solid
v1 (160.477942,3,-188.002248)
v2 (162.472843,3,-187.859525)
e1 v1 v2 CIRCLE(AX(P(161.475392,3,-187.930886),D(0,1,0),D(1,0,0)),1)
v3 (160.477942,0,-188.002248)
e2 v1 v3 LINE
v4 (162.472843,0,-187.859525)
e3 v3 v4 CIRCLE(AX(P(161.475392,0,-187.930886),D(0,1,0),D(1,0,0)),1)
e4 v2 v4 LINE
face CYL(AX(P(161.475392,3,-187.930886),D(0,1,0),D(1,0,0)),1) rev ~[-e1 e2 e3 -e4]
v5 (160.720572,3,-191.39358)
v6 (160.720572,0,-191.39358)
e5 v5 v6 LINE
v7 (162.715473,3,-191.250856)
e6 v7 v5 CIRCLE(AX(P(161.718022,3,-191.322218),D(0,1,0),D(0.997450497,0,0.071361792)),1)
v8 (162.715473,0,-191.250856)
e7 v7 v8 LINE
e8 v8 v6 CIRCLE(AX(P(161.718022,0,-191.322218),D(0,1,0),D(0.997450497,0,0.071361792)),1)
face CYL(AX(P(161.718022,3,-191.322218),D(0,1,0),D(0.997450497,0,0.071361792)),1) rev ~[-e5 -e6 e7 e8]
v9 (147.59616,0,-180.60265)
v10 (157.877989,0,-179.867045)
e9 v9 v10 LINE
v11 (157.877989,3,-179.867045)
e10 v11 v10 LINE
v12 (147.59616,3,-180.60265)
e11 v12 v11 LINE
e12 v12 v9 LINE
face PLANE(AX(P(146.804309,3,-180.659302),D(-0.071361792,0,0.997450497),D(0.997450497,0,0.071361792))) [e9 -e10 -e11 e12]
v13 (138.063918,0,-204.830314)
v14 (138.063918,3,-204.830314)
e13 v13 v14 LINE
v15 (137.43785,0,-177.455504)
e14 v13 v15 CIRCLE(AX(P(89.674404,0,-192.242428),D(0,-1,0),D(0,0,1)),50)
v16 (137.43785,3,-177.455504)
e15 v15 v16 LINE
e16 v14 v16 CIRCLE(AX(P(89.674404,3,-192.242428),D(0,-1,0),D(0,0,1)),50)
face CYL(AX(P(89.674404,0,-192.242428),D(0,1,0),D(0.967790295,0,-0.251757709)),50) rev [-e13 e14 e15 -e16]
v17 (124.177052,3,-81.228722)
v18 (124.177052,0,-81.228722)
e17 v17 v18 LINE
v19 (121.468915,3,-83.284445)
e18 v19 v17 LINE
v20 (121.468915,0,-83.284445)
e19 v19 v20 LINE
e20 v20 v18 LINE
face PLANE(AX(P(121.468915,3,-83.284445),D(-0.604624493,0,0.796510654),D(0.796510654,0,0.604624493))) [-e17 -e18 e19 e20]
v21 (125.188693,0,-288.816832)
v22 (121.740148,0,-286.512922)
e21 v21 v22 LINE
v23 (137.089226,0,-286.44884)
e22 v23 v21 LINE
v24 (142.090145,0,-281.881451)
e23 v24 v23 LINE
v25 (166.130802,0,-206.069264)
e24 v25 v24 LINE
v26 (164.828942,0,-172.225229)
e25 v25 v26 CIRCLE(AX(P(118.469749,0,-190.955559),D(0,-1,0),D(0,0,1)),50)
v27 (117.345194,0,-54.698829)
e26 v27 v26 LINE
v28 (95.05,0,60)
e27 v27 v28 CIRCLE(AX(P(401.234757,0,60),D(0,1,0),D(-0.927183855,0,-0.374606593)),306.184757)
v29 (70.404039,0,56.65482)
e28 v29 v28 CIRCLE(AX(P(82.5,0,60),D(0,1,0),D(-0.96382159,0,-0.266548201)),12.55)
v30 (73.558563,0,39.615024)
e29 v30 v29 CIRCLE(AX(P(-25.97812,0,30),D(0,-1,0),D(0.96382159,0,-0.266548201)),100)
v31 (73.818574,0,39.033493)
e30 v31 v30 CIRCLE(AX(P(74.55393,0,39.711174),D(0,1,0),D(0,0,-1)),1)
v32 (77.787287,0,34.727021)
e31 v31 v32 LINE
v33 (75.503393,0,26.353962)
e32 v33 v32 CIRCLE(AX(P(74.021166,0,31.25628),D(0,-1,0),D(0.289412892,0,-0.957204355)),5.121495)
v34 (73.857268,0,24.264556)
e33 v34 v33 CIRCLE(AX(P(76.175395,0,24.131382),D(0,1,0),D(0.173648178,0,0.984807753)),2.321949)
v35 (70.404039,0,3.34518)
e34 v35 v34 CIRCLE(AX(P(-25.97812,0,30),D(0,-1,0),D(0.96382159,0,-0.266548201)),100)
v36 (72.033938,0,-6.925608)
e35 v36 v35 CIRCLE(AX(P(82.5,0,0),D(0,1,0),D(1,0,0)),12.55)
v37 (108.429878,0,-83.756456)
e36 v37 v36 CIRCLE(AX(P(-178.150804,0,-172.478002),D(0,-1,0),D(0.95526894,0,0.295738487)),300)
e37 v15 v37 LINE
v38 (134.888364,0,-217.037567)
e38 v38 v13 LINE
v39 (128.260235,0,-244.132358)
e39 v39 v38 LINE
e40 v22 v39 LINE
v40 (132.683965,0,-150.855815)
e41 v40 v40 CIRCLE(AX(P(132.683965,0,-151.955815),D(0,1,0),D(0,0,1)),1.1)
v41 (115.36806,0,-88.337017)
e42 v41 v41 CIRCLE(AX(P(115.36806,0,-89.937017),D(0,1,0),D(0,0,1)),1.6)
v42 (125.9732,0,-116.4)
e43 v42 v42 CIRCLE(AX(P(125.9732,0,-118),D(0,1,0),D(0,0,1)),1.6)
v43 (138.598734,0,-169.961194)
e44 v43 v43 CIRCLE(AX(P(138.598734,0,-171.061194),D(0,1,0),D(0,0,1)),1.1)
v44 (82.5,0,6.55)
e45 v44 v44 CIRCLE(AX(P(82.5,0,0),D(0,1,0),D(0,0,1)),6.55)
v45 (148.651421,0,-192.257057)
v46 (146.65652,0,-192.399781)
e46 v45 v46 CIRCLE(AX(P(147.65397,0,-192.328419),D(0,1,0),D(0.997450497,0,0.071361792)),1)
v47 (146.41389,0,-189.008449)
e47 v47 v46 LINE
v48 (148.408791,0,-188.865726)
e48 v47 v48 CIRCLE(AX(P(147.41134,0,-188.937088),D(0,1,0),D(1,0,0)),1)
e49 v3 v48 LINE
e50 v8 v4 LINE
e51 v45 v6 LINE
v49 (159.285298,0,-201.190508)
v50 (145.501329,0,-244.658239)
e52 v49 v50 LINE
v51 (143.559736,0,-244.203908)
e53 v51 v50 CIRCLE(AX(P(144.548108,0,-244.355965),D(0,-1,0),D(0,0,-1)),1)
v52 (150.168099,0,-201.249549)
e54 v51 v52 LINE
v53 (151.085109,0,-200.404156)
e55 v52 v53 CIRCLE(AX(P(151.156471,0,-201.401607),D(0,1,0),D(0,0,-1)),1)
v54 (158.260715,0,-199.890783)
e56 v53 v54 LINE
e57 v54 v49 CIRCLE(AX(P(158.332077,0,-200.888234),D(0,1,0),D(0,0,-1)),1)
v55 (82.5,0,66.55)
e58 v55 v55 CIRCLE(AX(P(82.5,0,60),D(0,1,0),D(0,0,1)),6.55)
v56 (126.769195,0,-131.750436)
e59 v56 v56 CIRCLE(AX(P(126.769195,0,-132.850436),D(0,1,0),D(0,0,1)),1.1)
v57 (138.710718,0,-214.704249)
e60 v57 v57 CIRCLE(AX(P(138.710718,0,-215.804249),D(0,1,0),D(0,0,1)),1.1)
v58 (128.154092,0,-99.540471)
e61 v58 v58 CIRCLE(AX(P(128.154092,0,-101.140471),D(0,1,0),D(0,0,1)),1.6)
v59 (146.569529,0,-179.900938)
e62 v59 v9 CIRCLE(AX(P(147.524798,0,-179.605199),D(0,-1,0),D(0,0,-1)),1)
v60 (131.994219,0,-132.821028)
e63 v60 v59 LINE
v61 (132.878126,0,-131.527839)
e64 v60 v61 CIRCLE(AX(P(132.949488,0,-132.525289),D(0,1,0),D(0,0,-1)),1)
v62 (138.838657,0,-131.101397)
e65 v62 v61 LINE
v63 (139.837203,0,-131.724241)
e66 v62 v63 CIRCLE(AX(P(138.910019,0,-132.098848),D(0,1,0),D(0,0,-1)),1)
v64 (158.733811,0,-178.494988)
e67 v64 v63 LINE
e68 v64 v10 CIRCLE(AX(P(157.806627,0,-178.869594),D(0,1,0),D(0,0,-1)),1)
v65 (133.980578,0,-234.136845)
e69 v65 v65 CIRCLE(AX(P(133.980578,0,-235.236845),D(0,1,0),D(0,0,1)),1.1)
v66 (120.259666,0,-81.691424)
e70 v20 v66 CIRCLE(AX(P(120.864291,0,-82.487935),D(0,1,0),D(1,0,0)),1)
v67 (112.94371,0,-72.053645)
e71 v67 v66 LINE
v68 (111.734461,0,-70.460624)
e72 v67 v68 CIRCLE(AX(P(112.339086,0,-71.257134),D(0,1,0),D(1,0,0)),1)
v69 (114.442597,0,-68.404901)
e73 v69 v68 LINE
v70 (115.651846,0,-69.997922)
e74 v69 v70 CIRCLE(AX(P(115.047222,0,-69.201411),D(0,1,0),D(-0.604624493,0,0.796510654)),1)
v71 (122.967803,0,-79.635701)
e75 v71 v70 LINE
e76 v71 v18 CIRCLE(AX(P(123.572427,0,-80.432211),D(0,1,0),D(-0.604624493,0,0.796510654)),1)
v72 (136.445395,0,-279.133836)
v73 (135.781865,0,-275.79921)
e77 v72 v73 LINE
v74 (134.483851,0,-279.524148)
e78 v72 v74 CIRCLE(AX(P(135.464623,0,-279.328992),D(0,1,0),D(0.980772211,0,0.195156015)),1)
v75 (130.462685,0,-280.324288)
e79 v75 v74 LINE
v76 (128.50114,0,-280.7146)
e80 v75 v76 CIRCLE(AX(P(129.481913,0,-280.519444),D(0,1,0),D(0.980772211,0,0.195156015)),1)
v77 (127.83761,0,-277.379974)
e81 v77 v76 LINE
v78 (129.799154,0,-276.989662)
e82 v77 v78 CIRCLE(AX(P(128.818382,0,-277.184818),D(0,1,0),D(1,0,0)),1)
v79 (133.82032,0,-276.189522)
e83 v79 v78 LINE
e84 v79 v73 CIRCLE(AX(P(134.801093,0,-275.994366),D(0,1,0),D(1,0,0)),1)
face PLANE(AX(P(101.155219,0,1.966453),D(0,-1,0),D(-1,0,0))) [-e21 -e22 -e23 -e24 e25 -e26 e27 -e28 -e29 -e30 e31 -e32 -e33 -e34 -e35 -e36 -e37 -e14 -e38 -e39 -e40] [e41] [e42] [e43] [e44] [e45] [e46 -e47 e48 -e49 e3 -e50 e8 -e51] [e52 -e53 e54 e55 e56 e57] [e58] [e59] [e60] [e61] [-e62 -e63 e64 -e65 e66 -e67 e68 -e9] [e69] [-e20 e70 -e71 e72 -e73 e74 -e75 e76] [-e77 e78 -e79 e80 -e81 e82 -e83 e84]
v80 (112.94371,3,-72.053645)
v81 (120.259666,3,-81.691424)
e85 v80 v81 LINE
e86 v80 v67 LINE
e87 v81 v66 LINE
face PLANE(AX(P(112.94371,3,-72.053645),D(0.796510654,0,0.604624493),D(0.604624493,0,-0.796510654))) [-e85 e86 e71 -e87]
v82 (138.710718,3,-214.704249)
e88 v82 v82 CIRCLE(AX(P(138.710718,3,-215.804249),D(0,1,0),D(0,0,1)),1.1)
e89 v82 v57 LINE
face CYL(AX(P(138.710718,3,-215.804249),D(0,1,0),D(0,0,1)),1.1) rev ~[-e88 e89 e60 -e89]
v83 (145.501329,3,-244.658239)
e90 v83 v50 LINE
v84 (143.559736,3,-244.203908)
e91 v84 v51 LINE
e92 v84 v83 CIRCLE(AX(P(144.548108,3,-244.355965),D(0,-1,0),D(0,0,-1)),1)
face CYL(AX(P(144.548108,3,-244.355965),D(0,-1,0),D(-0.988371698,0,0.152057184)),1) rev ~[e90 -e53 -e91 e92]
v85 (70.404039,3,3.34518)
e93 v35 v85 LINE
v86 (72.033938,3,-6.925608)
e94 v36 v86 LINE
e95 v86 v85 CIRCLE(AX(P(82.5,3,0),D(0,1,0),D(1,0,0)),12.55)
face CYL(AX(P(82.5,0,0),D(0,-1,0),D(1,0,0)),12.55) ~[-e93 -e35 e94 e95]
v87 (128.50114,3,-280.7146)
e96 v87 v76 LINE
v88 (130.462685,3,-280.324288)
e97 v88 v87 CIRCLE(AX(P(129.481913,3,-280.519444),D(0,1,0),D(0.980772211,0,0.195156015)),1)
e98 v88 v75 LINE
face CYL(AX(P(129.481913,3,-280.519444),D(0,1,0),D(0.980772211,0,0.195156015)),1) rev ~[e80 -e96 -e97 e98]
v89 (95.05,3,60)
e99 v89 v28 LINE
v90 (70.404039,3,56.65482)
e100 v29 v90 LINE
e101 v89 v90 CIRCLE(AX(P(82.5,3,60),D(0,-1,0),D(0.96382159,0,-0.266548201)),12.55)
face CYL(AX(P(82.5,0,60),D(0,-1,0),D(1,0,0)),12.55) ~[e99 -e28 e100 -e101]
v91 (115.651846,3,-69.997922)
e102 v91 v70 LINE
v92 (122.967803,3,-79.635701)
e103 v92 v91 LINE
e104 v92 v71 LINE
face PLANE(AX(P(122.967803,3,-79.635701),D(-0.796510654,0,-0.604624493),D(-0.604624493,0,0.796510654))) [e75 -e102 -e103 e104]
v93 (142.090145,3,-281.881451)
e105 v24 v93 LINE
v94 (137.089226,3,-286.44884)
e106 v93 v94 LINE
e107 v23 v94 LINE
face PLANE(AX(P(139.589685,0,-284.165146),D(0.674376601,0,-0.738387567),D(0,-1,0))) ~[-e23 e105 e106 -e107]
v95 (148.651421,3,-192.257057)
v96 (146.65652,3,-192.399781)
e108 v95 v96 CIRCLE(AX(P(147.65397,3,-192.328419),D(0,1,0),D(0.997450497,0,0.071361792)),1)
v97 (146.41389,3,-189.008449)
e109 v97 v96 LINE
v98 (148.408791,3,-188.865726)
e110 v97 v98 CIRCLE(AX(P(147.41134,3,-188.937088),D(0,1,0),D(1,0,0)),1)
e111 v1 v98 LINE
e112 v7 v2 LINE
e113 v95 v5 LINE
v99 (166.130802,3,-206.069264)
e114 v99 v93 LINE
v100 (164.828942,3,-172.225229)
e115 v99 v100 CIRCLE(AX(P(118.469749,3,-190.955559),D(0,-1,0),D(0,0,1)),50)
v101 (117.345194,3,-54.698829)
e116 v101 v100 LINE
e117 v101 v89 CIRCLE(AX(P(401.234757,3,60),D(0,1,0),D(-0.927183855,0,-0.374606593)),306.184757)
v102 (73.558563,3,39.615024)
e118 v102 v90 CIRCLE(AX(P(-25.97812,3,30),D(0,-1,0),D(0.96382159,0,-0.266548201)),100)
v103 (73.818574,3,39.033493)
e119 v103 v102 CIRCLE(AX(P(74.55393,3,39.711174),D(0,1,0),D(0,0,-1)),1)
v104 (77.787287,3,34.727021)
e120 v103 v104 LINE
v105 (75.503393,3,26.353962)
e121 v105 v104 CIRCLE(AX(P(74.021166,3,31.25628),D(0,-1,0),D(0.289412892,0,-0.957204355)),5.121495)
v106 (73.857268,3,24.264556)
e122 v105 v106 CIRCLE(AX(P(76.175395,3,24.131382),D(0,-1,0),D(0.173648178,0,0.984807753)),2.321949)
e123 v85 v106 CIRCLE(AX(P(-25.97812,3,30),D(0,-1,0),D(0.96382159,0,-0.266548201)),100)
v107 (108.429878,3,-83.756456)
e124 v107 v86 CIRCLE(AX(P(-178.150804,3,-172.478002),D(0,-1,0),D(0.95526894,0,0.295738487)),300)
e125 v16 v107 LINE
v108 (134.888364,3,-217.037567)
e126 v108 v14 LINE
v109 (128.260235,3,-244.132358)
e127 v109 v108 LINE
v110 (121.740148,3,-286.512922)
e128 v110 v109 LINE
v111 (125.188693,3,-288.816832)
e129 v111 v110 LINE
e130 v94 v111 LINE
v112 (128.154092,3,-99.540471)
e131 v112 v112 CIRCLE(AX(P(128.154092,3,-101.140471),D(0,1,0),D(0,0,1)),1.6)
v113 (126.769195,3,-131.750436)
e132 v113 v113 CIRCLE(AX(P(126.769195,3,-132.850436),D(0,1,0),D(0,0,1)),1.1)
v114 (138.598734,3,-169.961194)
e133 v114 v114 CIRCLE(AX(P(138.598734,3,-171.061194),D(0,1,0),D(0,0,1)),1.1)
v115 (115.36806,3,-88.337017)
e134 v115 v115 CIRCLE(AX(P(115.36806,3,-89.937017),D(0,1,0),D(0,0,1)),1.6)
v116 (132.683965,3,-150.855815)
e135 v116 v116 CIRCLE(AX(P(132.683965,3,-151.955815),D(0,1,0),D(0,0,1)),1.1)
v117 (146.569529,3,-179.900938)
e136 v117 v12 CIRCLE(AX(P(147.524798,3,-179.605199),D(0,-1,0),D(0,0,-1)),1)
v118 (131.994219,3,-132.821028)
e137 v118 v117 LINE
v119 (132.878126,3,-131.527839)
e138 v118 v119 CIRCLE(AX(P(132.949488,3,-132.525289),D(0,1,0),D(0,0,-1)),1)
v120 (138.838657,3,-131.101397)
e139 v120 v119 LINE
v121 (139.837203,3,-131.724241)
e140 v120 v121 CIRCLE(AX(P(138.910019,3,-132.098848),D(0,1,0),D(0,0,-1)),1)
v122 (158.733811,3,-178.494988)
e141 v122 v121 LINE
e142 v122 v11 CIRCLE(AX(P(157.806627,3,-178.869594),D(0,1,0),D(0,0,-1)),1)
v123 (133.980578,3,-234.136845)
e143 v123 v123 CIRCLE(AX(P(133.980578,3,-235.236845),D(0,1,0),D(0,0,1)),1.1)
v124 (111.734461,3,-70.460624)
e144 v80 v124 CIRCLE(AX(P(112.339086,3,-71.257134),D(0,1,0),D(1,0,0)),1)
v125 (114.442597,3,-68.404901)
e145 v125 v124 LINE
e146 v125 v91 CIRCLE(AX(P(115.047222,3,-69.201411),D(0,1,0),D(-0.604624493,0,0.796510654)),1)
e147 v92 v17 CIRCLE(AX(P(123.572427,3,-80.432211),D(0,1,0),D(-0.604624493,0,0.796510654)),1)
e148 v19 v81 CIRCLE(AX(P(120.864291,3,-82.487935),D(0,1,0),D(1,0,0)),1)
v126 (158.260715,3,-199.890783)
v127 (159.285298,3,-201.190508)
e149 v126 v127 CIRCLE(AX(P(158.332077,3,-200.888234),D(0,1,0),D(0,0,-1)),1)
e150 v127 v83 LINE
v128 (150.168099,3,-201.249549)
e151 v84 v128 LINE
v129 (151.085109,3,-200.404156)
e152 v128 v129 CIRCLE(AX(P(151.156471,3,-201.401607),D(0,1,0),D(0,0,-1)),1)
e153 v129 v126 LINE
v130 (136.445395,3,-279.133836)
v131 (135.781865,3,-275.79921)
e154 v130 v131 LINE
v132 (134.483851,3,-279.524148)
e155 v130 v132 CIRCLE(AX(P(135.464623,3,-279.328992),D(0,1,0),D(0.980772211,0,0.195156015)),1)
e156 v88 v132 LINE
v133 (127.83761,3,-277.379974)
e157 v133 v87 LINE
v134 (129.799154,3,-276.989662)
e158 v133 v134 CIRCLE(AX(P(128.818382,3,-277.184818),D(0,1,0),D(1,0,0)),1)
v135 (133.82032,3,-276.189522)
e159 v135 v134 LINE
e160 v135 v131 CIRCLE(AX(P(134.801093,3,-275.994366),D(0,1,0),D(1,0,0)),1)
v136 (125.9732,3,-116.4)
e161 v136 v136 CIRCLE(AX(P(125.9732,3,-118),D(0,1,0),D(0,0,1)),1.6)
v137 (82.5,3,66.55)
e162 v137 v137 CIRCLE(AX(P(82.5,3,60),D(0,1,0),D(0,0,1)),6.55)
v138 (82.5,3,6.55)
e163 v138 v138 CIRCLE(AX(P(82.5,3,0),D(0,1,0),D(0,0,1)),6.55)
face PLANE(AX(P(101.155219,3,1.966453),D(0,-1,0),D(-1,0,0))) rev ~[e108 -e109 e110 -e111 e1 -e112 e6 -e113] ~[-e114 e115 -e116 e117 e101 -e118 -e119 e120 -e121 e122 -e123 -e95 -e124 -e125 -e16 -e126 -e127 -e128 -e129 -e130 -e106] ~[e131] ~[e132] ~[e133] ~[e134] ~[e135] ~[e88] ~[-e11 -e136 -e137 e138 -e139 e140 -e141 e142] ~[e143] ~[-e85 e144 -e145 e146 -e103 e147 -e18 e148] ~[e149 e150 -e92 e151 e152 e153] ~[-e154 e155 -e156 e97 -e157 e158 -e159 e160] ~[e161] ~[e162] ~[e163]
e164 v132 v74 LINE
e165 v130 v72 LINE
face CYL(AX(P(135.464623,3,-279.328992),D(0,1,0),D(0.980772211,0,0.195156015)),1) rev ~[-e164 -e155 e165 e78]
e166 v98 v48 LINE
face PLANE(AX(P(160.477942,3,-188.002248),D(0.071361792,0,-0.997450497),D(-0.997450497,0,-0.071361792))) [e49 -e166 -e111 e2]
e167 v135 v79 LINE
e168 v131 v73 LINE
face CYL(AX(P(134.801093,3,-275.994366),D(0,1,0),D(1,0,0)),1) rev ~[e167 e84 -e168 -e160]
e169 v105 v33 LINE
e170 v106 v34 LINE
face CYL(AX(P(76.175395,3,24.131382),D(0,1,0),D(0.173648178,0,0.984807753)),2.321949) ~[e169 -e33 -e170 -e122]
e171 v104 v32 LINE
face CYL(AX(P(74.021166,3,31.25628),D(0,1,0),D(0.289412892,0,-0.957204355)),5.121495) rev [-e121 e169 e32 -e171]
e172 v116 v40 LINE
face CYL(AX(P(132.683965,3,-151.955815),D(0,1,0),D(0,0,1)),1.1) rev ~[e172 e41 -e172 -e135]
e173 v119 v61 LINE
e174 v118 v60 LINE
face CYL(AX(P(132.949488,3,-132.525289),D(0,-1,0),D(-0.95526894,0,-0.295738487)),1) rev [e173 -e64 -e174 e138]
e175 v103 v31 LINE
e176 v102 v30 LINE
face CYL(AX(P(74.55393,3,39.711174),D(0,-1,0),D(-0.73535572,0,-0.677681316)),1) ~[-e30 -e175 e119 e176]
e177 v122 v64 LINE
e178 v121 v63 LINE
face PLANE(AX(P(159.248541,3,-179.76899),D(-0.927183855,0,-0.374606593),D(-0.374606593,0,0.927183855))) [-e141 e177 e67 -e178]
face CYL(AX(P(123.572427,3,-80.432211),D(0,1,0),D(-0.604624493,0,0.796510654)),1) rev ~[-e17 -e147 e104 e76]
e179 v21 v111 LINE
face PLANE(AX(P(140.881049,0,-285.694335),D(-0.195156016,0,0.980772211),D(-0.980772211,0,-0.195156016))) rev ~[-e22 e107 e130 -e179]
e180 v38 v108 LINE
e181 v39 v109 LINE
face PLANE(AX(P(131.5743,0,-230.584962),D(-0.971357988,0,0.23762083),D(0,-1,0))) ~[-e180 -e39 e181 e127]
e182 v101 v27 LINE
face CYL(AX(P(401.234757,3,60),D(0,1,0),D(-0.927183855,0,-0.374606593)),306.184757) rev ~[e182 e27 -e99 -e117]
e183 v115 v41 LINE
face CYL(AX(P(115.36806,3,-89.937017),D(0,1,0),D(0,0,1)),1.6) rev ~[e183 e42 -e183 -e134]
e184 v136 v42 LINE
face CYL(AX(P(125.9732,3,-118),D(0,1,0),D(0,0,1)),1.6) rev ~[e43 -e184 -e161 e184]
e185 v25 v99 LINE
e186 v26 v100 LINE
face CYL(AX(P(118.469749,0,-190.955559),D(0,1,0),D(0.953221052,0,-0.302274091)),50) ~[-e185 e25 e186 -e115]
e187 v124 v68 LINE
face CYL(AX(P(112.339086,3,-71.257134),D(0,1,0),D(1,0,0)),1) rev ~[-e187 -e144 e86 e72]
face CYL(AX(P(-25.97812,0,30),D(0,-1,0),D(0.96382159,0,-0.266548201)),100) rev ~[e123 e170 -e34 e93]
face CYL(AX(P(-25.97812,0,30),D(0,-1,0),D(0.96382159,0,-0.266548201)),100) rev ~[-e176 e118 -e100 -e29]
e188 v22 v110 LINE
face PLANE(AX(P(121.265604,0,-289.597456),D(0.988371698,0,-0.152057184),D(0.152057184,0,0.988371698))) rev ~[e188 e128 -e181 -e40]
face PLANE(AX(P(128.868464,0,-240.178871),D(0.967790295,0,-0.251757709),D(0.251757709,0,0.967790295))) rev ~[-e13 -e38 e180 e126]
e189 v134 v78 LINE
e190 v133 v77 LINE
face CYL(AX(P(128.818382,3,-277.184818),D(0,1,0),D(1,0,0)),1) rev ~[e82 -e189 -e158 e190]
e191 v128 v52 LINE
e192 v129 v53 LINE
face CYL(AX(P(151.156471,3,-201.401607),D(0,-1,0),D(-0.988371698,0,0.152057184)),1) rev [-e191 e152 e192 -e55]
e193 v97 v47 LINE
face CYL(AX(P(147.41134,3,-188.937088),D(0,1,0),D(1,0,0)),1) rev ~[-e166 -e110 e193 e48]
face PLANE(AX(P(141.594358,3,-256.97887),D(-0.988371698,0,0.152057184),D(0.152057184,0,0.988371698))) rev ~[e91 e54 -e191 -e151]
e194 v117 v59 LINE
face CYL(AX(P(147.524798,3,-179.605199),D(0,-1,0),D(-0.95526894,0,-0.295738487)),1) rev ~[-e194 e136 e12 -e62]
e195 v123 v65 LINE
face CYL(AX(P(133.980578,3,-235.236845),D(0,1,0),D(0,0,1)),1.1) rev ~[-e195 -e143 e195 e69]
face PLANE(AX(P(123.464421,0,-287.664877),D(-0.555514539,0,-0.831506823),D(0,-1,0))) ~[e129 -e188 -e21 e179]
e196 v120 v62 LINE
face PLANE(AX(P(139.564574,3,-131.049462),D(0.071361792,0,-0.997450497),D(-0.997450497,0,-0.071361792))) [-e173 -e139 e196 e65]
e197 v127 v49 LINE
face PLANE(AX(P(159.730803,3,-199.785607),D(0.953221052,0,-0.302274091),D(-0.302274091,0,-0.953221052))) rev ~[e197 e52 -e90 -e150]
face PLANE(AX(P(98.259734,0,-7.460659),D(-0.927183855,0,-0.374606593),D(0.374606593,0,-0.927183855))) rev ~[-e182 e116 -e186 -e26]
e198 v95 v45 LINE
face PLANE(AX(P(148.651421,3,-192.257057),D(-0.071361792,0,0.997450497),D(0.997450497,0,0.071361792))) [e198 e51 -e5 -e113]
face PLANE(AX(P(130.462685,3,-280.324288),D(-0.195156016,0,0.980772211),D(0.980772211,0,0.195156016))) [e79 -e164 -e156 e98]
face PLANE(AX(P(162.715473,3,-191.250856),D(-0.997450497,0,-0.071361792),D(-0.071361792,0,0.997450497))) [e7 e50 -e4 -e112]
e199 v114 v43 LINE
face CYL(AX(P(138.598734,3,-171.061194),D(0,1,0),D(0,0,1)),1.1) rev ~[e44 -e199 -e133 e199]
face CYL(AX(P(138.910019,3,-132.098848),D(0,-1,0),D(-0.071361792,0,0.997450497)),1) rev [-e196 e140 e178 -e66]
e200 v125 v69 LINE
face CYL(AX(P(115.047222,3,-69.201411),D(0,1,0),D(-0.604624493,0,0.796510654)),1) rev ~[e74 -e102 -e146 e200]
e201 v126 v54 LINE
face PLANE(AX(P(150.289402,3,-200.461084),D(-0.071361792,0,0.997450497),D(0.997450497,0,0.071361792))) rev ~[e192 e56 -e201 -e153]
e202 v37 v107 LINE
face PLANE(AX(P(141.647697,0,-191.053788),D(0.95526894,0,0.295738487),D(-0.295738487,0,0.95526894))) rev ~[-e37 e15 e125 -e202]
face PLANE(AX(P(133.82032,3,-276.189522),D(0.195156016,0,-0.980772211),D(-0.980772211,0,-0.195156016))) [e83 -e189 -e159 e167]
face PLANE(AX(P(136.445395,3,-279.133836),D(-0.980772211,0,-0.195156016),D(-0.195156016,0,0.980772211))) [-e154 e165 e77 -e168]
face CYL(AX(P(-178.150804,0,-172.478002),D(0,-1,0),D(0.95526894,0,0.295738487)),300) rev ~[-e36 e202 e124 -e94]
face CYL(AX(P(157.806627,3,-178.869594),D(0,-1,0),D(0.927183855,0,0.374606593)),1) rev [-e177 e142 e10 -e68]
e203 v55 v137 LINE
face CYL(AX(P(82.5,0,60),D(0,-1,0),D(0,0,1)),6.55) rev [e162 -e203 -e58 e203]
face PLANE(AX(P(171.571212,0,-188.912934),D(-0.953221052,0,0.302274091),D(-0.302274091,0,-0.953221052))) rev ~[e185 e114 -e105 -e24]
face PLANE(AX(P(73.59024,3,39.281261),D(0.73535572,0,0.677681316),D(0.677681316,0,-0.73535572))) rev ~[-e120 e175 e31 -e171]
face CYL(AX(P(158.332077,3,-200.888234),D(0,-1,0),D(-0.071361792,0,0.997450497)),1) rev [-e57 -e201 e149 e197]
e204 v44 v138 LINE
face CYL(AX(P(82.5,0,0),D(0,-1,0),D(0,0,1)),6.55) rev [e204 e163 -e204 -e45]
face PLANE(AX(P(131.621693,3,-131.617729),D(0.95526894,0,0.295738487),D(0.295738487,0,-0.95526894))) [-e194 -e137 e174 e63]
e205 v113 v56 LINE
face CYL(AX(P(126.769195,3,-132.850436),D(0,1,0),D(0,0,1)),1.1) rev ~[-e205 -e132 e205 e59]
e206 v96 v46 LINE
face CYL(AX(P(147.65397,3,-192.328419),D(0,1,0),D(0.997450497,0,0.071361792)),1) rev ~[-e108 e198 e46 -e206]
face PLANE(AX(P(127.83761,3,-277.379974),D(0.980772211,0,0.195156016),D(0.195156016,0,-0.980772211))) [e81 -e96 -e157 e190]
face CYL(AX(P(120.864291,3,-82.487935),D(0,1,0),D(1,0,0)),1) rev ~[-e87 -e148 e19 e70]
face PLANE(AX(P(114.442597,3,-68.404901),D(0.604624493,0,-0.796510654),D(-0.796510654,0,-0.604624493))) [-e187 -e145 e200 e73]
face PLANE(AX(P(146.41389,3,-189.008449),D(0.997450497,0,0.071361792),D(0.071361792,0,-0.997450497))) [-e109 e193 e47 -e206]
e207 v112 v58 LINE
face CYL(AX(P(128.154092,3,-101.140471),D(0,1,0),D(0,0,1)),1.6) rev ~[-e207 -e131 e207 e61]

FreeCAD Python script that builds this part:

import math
import FreeCAD as App
import Part
import Sketcher

V = App.Vector
Q = App.Units.Quantity


def edges_at(feature, points):
    """Names of the edges that pass closest to the given points."""
    edges = feature.Shape.Edges
    near = lambda p: min(range(len(edges)), key=lambda i: edges[i].distToShape(Part.Vertex(*p))[0])
    return sorted({f"Edge{near(p) + 1}" for p in points})


def add_polygon(sketch, points):
    """Adds a closed chain of lines whose ends are joined by coincident constraints."""
    first, n = sketch.GeometryCount, len(points)
    for a, b in zip(points, points[1:] + points[:1]):
        sketch.addGeometry(Part.LineSegment(App.Vector(*a, 0), App.Vector(*b, 0)), False)
    for i in range(n):
        sketch.addConstraint(Sketcher.Constraint("Coincident", first + i, 2, first + (i + 1) % n, 1))

doc = App.newDocument("Part")
body = doc.addObject("PartDesign::Body", "Body")

sketch1 = body.newObject("Sketcher::SketchObject", "Sketch")
sketch1.AttachmentSupport = (doc.getObject("XZ_Plane"), [""])
sketch1.MapMode = "FlatFace"
sketch1.addGeometry([
    Part.LineSegment(V(121, -290, 0), V(129, -240, 0)),
    Part.LineSegment(V(129, -240, 0), V(142, -191, 0)),
    Part.LineSegment(V(142, -191, 0), V(108, -84, 0)),
    Part.ArcOfCircle(Part.Circle(V(-178, -172, 0), V(0, 0, 1), 300), math.radians(17.2), math.radians(33.49)),
    Part.ArcOfCircle(Part.Circle(V(82, 0, 0), V(0, 0, 1), 13), math.radians(165), math.radians(213)),
    Part.ArcOfCircle(Part.Circle(V(-26, 30, 0), V(0, 0, 1), 100), math.radians(-15), math.radians(15)),
    Part.ArcOfCircle(Part.Circle(V(82, 60, 0), V(0, 0, 1), 13), math.radians(-15), math.radians(195)),
    Part.ArcOfCircle(Part.Circle(V(191, 30, 0), V(0, 0, 1), 100), math.radians(165), math.radians(195)),
    Part.ArcOfCircle(Part.Circle(V(191, 30, 0), V(0, 0, 1), 100), math.radians(-164.54), math.radians(-158)),
    Part.LineSegment(V(98, -7, 0), V(172, -189, 0)),
    Part.LineSegment(V(172, -189, 0), V(141, -286, 0)),
    Part.LineSegment(V(141, -286, 0), V(121, -290, 0)),
    Part.Circle(V(82, 0, 0), V(0, 0, 1), 7),
    Part.Circle(V(82, 60, 0), V(0, 0, 1), 7),
], False)
sketch1.addConstraint([
    Sketcher.Constraint("Coincident", 0, 2, 1, 1),
    Sketcher.Constraint("Coincident", 1, 2, 2, 1),
    Sketcher.Constraint("Tangent", 2, 2, 3, 1),
    Sketcher.Constraint("Tangent", 3, 2, 4, 2),
    Sketcher.Constraint("Tangent", 4, 1, 5, 1),
    Sketcher.Constraint("Tangent", 5, 2, 6, 2),
    Sketcher.Constraint("Tangent", 6, 1, 7, 1),
    Sketcher.Constraint("Tangent", 7, 2, 8, 1),
    Sketcher.Constraint("Tangent", 8, 2, 9, 1),
    Sketcher.Constraint("Coincident", 9, 2, 10, 1),
    Sketcher.Constraint("Coincident", 10, 2, 11, 1),
    Sketcher.Constraint("Coincident", 11, 2, 0, 1),
    Sketcher.Constraint("Coincident", 12, 3, 4, 3),
    Sketcher.Constraint("Coincident", 13, 3, 6, 3),
    Sketcher.Constraint("Equal", 4, 6),
    Sketcher.Constraint("Equal", 5, 7),
    Sketcher.Constraint("Equal", 7, 8),
    Sketcher.Constraint("Equal", 12, 13),
    Sketcher.Constraint("PointOnObject", 4, 3, -1),
    Sketcher.Constraint("Horizontal", 5, 3, 7, 3),
    Sketcher.Constraint("Horizontal", 4, 1, 7, 2),
    Sketcher.Constraint("Vertical", 4, 3, 6, 3),
    Sketcher.Constraint("Radius", 3, Q("300 mm")),
    Sketcher.Constraint("Radius", 5, Q("100 mm")),
    Sketcher.Constraint("Diameter", 12, Q("13.1 mm")),
    Sketcher.Constraint("Angle", 9, Q("-68 deg")),
    Sketcher.Constraint("Radius", 4, Q("12.55 mm")),
    Sketcher.Constraint("Distance", 0, Q("50 mm")),
    Sketcher.Constraint("Distance", 11, Q("20 mm")),
    Sketcher.Constraint("DistanceY", -1, 1, 5, 3, Q("30 mm")),
    Sketcher.Constraint("DistanceX", -1, 1, 4, 3, Q("82.5 mm")),
    Sketcher.Constraint("DistanceY", 3, 3, -1, 1, Q("172.478002 mm")),
    Sketcher.Constraint("DistanceY", 11, 2, 2, 2, Q("205.841 mm")),
    Sketcher.Constraint("DistanceY", 10, 2, 9, 2, Q("96.781401 mm")),
    Sketcher.Constraint("Distance", 1, Q("50.760049 mm")),
    Sketcher.Constraint("Distance", 10, Q("101.53091 mm")),
    Sketcher.Constraint("DistanceY", 0, 2, -1, 1, Q("240.178871 mm")),
    Sketcher.Constraint("DistanceX", -1, 1, 2, 2, Q("108.429878 mm")),
    Sketcher.Constraint("DistanceX", -1, 1, 10, 2, Q("140.881049 mm")),
])
pad1 = body.newObject("PartDesign::Pad", "Pad")
pad1.Profile = sketch1
pad1.Length = 3
pad1.Reversed = True

sketch2 = body.newObject("Sketcher::SketchObject", "Sketch001")
sketch2.AttachmentSupport = (doc.getObject("XZ_Plane"), [""])
sketch2.MapMode = "FlatFace"
sketch2.AttachmentOffset = App.Placement(V(0, 0, -3), App.Rotation())
sketch2.addGeometry([
    Part.ArcOfCircle(Part.Circle(V(77.3, 30.5, 0), V(0, 0, 1), 4.1), math.radians(10), math.radians(80)),
    Part.ArcOfCircle(Part.Circle(V(87.3, 30.5, 0), V(0, 0, 1), 6), math.radians(173.34), math.radians(186.66)),
    Part.ArcOfCircle(Part.Circle(V(77.3, 30.5, 0), V(0, 0, 1), 4.1), math.radians(-100), math.radians(-10)),
    Part.ArcOfCircle(Part.Circle(V(76.2, 24.1, 0), V(0, 0, 1), 2.3), math.radians(80), math.radians(177)),
    Part.ArcOfCircle(Part.Circle(V(-26, 30, 0), V(0, 0, 1), 100), math.radians(-3.29), math.radians(5.33)),
    Part.LineSegment(V(73.6, 39.3, 0), V(78, 34.5, 0)),
], False)
sketch2.addConstraint([
    Sketcher.Constraint("Coincident", 0, 1, 1, 1),
    Sketcher.Constraint("Coincident", 1, 2, 2, 2),
    Sketcher.Constraint("Tangent", 2, 1, 3, 1),
    Sketcher.Constraint("Tangent", 3, 2, 4, 1),
    Sketcher.Constraint("Coincident", 4, 2, 5, 1),
    Sketcher.Constraint("Coincident", 5, 2, 0, 2),
    Sketcher.Constraint("Coincident", 2, 3, 0, 3),
    Sketcher.Constraint("Equal", 0, 2),
    Sketcher.Constraint("Horizontal", 0, 3, 1, 3),
    Sketcher.Constraint("Radius", 1, Q("6 mm")),
    Sketcher.Constraint("Radius", 4, Q("100 mm")),
    Sketcher.Constraint("Radius", 0, Q("4.1 mm")),
    Sketcher.Constraint("DistanceY", -1, 1, 4, 3, Q("30 mm")),
    Sketcher.Constraint("DistanceX", 0, 3, 1, 3, Q("10 mm")),
    Sketcher.Constraint("Radius", 3, Q("2.321949 mm")),
    Sketcher.Constraint("DistanceY", 3, 2, 2, 1, Q("2.153499 mm")),
    Sketcher.Constraint("DistanceX", 4, 3, -1, 1, Q("25.97812 mm")),
    Sketcher.Constraint("DistanceX", -1, 1, 3, 2, Q("73.857268 mm")),
    Sketcher.Constraint("DistanceX", -1, 1, 4, 2, Q("73.59024 mm")),
    Sketcher.Constraint("DistanceY", -1, 1, 5, 2, Q("34.493479 mm")),
])
pocket1 = body.newObject("PartDesign::Pocket", "Pocket")
pocket1.Profile = sketch2
pocket1.Type = "ThroughAll"
pocket1.Reversed = True

sketch3 = body.newObject("Sketcher::SketchObject", "Sketch002")
sketch3.AttachmentSupport = (doc.getObject("XZ_Plane"), [""])
sketch3.MapMode = "FlatFace"
sketch3.AttachmentOffset = App.Placement(V(0, 0, -3), App.Rotation())
sketch3.addGeometry([
    Part.ArcOfCircle(Part.Circle(V(191, 30, 0), V(0, 0, 1), 100), math.radians(177.09), math.radians(182.41)),
    Part.ArcOfCircle(Part.Circle(V(191, 30, 0), V(0, 0, 1), 100), math.radians(174.67), math.radians(177.09)),
    Part.ArcOfCircle(Part.Circle(V(102.2, 38.3, 0), V(0, 0, 1), 10.8), math.radians(175), math.radians(208)),
    Part.ArcOfCircle(Part.Circle(V(87.3, 30.5, 0), V(0, 0, 1), 6), math.radians(0), math.radians(28)),
    Part.ArcOfCircle(Part.Circle(V(87.3, 30.5, 0), V(0, 0, 1), 6), math.radians(-40), math.radians(0)),
    Part.ArcOfCircle(Part.Circle(V(94.6, 24.5, 0), V(0, 0, 1), 3.4), math.radians(140), math.radians(183)),
    Part.ArcOfCircle(Part.Circle(V(191, 30, 0), V(0, 0, 1), 100), math.radians(-177.59), math.radians(-176.71)),
], False)
sketch3.addConstraint([
    Sketcher.Constraint("Tangent", 0, 1, 1, 2),
    Sketcher.Constraint("Tangent", 1, 1, 2, 1),
    Sketcher.Constraint("Tangent", 2, 2, 3, 2),
    Sketcher.Constraint("Tangent", 3, 1, 4, 2),
    Sketcher.Constraint("Tangent", 4, 1, 5, 1),
    Sketcher.Constraint("Tangent", 5, 2, 6, 2),
    Sketcher.Constraint("Tangent", 6, 1, 0, 2),
    Sketcher.Constraint("Equal", 0, 1),
    Sketcher.Constraint("Equal", 3, 4),
    Sketcher.Constraint("Horizontal", 4, 3, 3, 1),
    Sketcher.Constraint("Radius", 0, Q("100.000001 mm")),
    Sketcher.Constraint("Radius", 3, Q("6 mm")),
    Sketcher.Constraint("DistanceY", -1, 1, 0, 3, Q("30 mm")),
    Sketcher.Constraint("DistanceY", -1, 1, 6, 3, Q("30 mm")),
    Sketcher.Constraint("Radius", 2, Q("10.828526 mm")),
    Sketcher.Constraint("Radius", 5, Q("3.421404 mm")),
    Sketcher.Constraint("DistanceX", 5, 2, 4, 1, Q("0.7764 mm")),
    Sketcher.Constraint("DistanceX", -1, 1, 0, 3, Q("190.978121 mm")),
    Sketcher.Constraint("DistanceY", -1, 1, 5, 3, Q("24.460789 mm")),
    Sketcher.Constraint("DistanceX", -1, 1, 6, 1, Q("91.066652 mm")),
    Sketcher.Constraint("DistanceX", 3, 3, 0, 1, Q("3.816941 mm")),
])
pad2 = body.newObject("PartDesign::Pad", "Pad001")
pad2.Profile = sketch3
pad2.Length = 3
doc.recompute()

chamfer = body.newObject("PartDesign::Chamfer", "Chamfer")
chamfer.Base = (pad2, edges_at(pad2, [(121.266, 1.5, -289.597)]))
chamfer.ChamferType = "Two distances"
chamfer.Size = 4
chamfer.Size2 = 3.120824
doc.recompute()

chamfer2 = body.newObject("PartDesign::Chamfer", "Chamfer001")
chamfer2.Base = (chamfer, edges_at(chamfer, [(140.881, 1.5, -285.694)]))
chamfer2.ChamferType = "Two distances"
chamfer2.Size = 4
chamfer2.Size2 = 3.866161
doc.recompute()

chamfer3 = body.newObject("PartDesign::Chamfer", "Chamfer002")
chamfer3.Base = (chamfer2, edges_at(chamfer2, [(128.868, 1.5, -240.179)]))
chamfer3.ChamferType = "Two distances"
chamfer3.Size = 4
chamfer3.Size2 = 23.911485

sketch4 = body.newObject("Sketcher::SketchObject", "Sketch003")
sketch4.AttachmentSupport = (doc.getObject("XZ_Plane"), [""])
sketch4.MapMode = "FlatFace"
sketch4.AttachmentOffset = App.Placement(V(0, 0, -3), App.Rotation())
sketch4.addGeometry([
    Part.ArcOfCircle(Part.Circle(V(129.5, -280.5, 0), V(0, 0, 1), 1), math.radians(-169), math.radians(11)),
    Part.LineSegment(V(128.5, -280.7, 0), V(127.8, -277.4, 0)),
    Part.ArcOfCircle(Part.Circle(V(128.8, -277.2, 0), V(0, 0, 1), 1), math.radians(11), math.radians(191)),
    Part.LineSegment(V(129.8, -277, 0), V(133.8, -276.2, 0)),
    Part.ArcOfCircle(Part.Circle(V(134.8, -276, 0), V(0, 0, 1), 1), math.radians(11), math.radians(191)),
    Part.LineSegment(V(135.8, -275.8, 0), V(136.4, -279.1, 0)),
    Part.ArcOfCircle(Part.Circle(V(135.5, -279.3, 0), V(0, 0, 1), 1), math.radians(-169), math.radians(11)),
    Part.LineSegment(V(134.5, -279.5, 0), V(130.5, -280.3, 0)),
    Part.ArcOfCircle(Part.Circle(V(147.7, -192.3, 0), V(0, 0, 1), 1), math.radians(-176), math.radians(4)),
    Part.LineSegment(V(146.7, -192.4, 0), V(146.4, -189, 0)),
    Part.ArcOfCircle(Part.Circle(V(147.4, -188.9, 0), V(0, 0, 1), 1), math.radians(4), math.radians(184)),
    Part.LineSegment(V(148.4, -188.9, 0), V(160.5, -188, 0)),
    Part.ArcOfCircle(Part.Circle(V(161.5, -187.9, 0), V(0, 0, 1), 1), math.radians(4), math.radians(184)),
    Part.LineSegment(V(162.5, -187.9, 0), V(162.7, -191.3, 0)),
    Part.ArcOfCircle(Part.Circle(V(161.7, -191.3, 0), V(0, 0, 1), 1), math.radians(-176), math.radians(4)),
    Part.LineSegment(V(160.7, -191.4, 0), V(148.7, -192.3, 0)),
    Part.ArcOfCircle(Part.Circle(V(112.3, -71.3, 0), V(0, 0, 1), 1), math.radians(127), math.radians(307)),
    Part.LineSegment(V(111.7, -70.5, 0), V(114.4, -68.4, 0)),
    Part.ArcOfCircle(Part.Circle(V(115, -69.2, 0), V(0, 0, 1), 1), math.radians(-53), math.radians(127)),
    Part.LineSegment(V(115.7, -70, 0), V(123, -79.6, 0)),
    Part.ArcOfCircle(Part.Circle(V(123.6, -80.4, 0), V(0, 0, 1), 1), math.radians(-53), math.radians(127)),
    Part.LineSegment(V(124.2, -81.2, 0), V(121.5, -83.3, 0)),
    Part.ArcOfCircle(Part.Circle(V(120.9, -82.5, 0), V(0, 0, 1), 1), math.radians(127), math.radians(307)),
    Part.LineSegment(V(120.3, -81.7, 0), V(112.9, -72.1, 0)),
], False)
sketch4.addConstraint([
    Sketcher.Constraint("Tangent", 0, 1, 1, 1),
    Sketcher.Constraint("Tangent", 1, 2, 2, 2),
    Sketcher.Constraint("Coincident", 2, 1, 3, 1),
    Sketcher.Constraint("Coincident", 3, 2, 4, 2),
    Sketcher.Constraint("Tangent", 4, 1, 5, 1),
    Sketcher.Constraint("Tangent", 5, 2, 6, 2),
    Sketcher.Constraint("Coincident", 6, 1, 7, 1),
    Sketcher.Constraint("Coincident", 7, 2, 0, 2),
    Sketcher.Constraint("Tangent", 8, 1, 9, 1),
    Sketcher.Constraint("Tangent", 9, 2, 10, 2),
    Sketcher.Constraint("Coincident", 10, 1, 11, 1),
    Sketcher.Constraint("Coincident", 11, 2, 12, 2),
    Sketcher.Constraint("Tangent", 12, 1, 13, 1),
    Sketcher.Constraint("Tangent", 13, 2, 14, 2),
    Sketcher.Constraint("Coincident", 14, 1, 15, 1),
    Sketcher.Constraint("Coincident", 15, 2, 8, 2),
    Sketcher.Constraint("Tangent", 16, 1, 17, 1),
    Sketcher.Constraint("Tangent", 17, 2, 18, 2),
    Sketcher.Constraint("Coincident", 18, 1, 19, 1),
    Sketcher.Constraint("Coincident", 19, 2, 20, 2),
    Sketcher.Constraint("Tangent", 20, 1, 21, 1),
    Sketcher.Constraint("Tangent", 21, 2, 22, 2),
    Sketcher.Constraint("Coincident", 22, 1, 23, 1),
    Sketcher.Constraint("Coincident", 23, 2, 16, 2),
    Sketcher.Constraint("Equal", 0, 2),
    Sketcher.Constraint("Equal", 2, 4),
    Sketcher.Constraint("Equal", 4, 6),
    Sketcher.Constraint("Equal", 6, 8),
    Sketcher.Constraint("Equal", 8, 10),
    Sketcher.Constraint("Equal", 10, 12),
    Sketcher.Constraint("Equal", 12, 14),
    Sketcher.Constraint("Equal", 14, 16),
    Sketcher.Constraint("Equal", 16, 18),
    Sketcher.Constraint("Equal", 18, 20),
    Sketcher.Constraint("Equal", 20, 22),
    Sketcher.Constraint("Perpendicular", 1, 3),
    Sketcher.Constraint("Perpendicular", 3, 5),
    Sketcher.Constraint("Perpendicular", 5, 7),
    Sketcher.Constraint("Perpendicular", 9, 11),
    Sketcher.Constraint("Perpendicular", 11, 13),
    Sketcher.Constraint("Perpendicular", 13, 15),
    Sketcher.Constraint("Perpendicular", 17, 19),
    Sketcher.Constraint("Perpendicular", 19, 21),
    Sketcher.Constraint("Perpendicular", 21, 23),
    Sketcher.Constraint("Equal", 1, 5),
    Sketcher.Constraint("Equal", 5, 9),
    Sketcher.Constraint("Equal", 9, 13),
    Sketcher.Constraint("Equal", 13, 17),
    Sketcher.Constraint("Equal", 15, 19),
    Sketcher.Constraint("Equal", 17, 21),
    Sketcher.Constraint("Radius", 0, Q("1 mm")),
    Sketcher.Constraint("Distance", 1, Q("3.4 mm")),
    Sketcher.Constraint("Distance", 3, Q("4.1 mm")),
    Sketcher.Constraint("Distance", 11, Q("12.1 mm")),
    Sketcher.Constraint("DistanceY", 0, 1, -1, 1, Q("280.7146 mm")),
    Sketcher.Constraint("DistanceY", 17, 2, -1, 1, Q("68.404901 mm")),
    Sketcher.Constraint("DistanceY", 19, 2, -1, 1, Q("79.635701 mm")),
    Sketcher.Constraint("DistanceY", 2, 3, 8, 3, Q("84.856399 mm")),
    Sketcher.Constraint("DistanceY", 10, 3, 12, 3, Q("1.006201 mm")),
    Sketcher.Constraint("DistanceX", 4, 3, 12, 3, Q("26.6743 mm")),
    Sketcher.Constraint("DistanceX", 6, 3, 14, 3, Q("26.253399 mm")),
    Sketcher.Constraint("DistanceX", 18, 3, 14, 3, Q("46.670801 mm")),
    Sketcher.Constraint("DistanceY", 20, 3, 18, 3, Q("11.2308 mm")),
    Sketcher.Constraint("DistanceX", 22, 3, 12, 3, Q("40.611101 mm")),
    Sketcher.Constraint("DistanceX", 9, 2, 10, 1, Q("1.994901 mm")),
    Sketcher.Constraint("DistanceX", 10, 3, 11, 2, Q("13.066602 mm")),
    Sketcher.Constraint("DistanceX", 14, 1, 13, 2, Q("1.994901 mm")),
    Sketcher.Constraint("DistanceY", 22, 1, 20, 1, Q("0.462702 mm")),
    Sketcher.Constraint("DistanceY", 6, 3, -1, 1, Q("279.328992 mm")),
    Sketcher.Constraint("DistanceX", -1, 1, 8, 3, Q("147.65397 mm")),
    Sketcher.Constraint("DistanceX", -1, 1, 3, 2, Q("133.82032 mm")),
    Sketcher.Constraint("DistanceX", -1, 1, 6, 1, Q("134.483851 mm")),
])
pocket2 = body.newObject("PartDesign::Pocket", "Pocket001")
pocket2.Profile = sketch4
pocket2.Type = "ThroughAll"
pocket2.Reversed = True

sketch5 = body.newObject("Sketcher::SketchObject", "Sketch004")
sketch5.AttachmentSupport = (doc.getObject("XZ_Plane"), [""])
sketch5.MapMode = "FlatFace"
sketch5.AttachmentOffset = App.Placement(V(0, 0, -3), App.Rotation())
sketch5.addGeometry([
    Part.Circle(V(134, -235.2, 0), V(0, 0, 1), 1.1),
    Part.Circle(V(138.7, -215.8, 0), V(0, 0, 1), 1.1),
    Part.Circle(V(138.6, -171.1, 0), V(0, 0, 1), 1.1),
    Part.Circle(V(132.7, -152, 0), V(0, 0, 1), 1.1),
    Part.Circle(V(126.8, -132.9, 0), V(0, 0, 1), 1.1),
    Part.Circle(V(126, -118, 0), V(0, 0, 1), 1.6),
    Part.Circle(V(115.4, -89.9, 0), V(0, 0, 1), 1.6),
    Part.Circle(V(128.2, -101.1, 0), V(0, 0, 1), 1.6),
], False)
sketch5.addConstraint([
    Sketcher.Constraint("Equal", 0, 1),
    Sketcher.Constraint("Equal", 1, 2),
    Sketcher.Constraint("Equal", 2, 3),
    Sketcher.Constraint("Equal", 3, 4),
    Sketcher.Constraint("Equal", 5, 6),
    Sketcher.Constraint("Equal", 6, 7),
    Sketcher.Constraint("Diameter", 0, Q("2.2 mm")),
    Sketcher.Constraint("Diameter", 5, Q("3.2 mm")),
    Sketcher.Constraint("DistanceY", 5, 3, -1, 1, Q("118 mm")),
    Sketcher.Constraint("DistanceX", -1, 1, 5, 3, Q("125.9732 mm")),
    Sketcher.Constraint("DistanceX", -1, 1, 0, 3, Q("133.980578 mm")),
    Sketcher.Constraint("DistanceY", 1, 3, -1, 1, Q("215.804249 mm")),
    Sketcher.Constraint("DistanceX", -1, 1, 6, 3, Q("115.36806 mm")),
    Sketcher.Constraint("DistanceY", 7, 3, -1, 1, Q("101.140471 mm")),
    Sketcher.Constraint("DistanceX", 0, 3, 1, 3, Q("4.73014 mm")),
    Sketcher.Constraint("DistanceY", 0, 3, 2, 3, Q("64.175651 mm")),
    Sketcher.Constraint("DistanceX", 3, 3, 2, 3, Q("5.91477 mm")),
    Sketcher.Constraint("DistanceY", 2, 3, 3, 3, Q("19.105379 mm")),
    Sketcher.Constraint("DistanceX", 4, 3, 3, 3, Q("5.91477 mm")),
    Sketcher.Constraint("DistanceY", 3, 3, 4, 3, Q("19.105379 mm")),
    Sketcher.Constraint("DistanceY", 4, 3, 6, 3, Q("42.913419 mm")),
    Sketcher.Constraint("DistanceX", 6, 3, 7, 3, Q("12.786032 mm")),
    Sketcher.Constraint("DistanceY", 0, 3, -1, 1, Q("235.236845 mm")),
    Sketcher.Constraint("DistanceX", -1, 1, 2, 3, Q("138.598734 mm")),
])
pocket3 = body.newObject("PartDesign::Pocket", "Pocket002")
pocket3.Profile = sketch5
pocket3.Type = "ThroughAll"
pocket3.Reversed = True
doc.recompute()

fillet = body.newObject("PartDesign::Fillet", "Fillet")
fillet.Base = (pocket3, edges_at(pocket3, [(141.648, 1.5, -191.054), (171.571, 1.5, -188.913)]))
fillet.Radius = 50

sketch6 = body.newObject("Sketcher::SketchObject", "Sketch005")
sketch6.AttachmentSupport = (doc.getObject("XZ_Plane"), [""])
sketch6.MapMode = "FlatFace"
sketch6.AttachmentOffset = App.Placement(V(0, 0, -3), App.Rotation())
add_polygon(sketch6, [(142, -257), (150, -200), (160, -200)])
add_polygon(sketch6, [(159, -180), (147, -181), (132, -132), (140, -131)])
sketch6.addConstraint([
    Sketcher.Constraint("Parallel", 1, 3),
    Sketcher.Constraint("Parallel", 3, 5),
    Sketcher.Constraint("Angle", 6, Q("-68 deg")),
    Sketcher.Constraint("Distance", 2, Q("60 mm")),
    Sketcher.Constraint("DistanceX", -1, 1, 0, 2, Q("150.289402 mm")),
    Sketcher.Constraint("DistanceX", 0, 2, 1, 2, Q("9.441401 mm")),
    Sketcher.Constraint("Distance", 3, Q("12.47604 mm")),
    Sketcher.Constraint("DistanceY", 2, 2, -1, 1, Q("256.97887 mm")),
    Sketcher.Constraint("DistanceX", -1, 1, 3, 2, Q("146.804309 mm")),
    Sketcher.Constraint("DistanceY", 4, 2, -1, 1, Q("131.617729 mm")),
    Sketcher.Constraint("DistanceX", -1, 1, 6, 2, Q("159.248541 mm")),
    Sketcher.Constraint("DistanceY", 6, 2, -1, 1, Q("179.76899 mm")),
    Sketcher.Constraint("DistanceX", 2, 2, 3, 2, Q("5.209951 mm")),
    Sketcher.Constraint("DistanceX", 4, 2, 0, 2, Q("18.667708 mm")),
])
pocket4 = body.newObject("PartDesign::Pocket", "Pocket003")
pocket4.Profile = sketch6
pocket4.Type = "ThroughAll"
pocket4.Reversed = True
doc.recompute()

fillet2 = body.newObject("PartDesign::Fillet", "Fillet001")
fillet2.Base = (pocket4, edges_at(pocket4, [
    (159.731, 1.5, -199.786),
    (150.289, 1.5, -200.461),
    (131.622, 1.5, -131.618),
    (146.804, 1.5, -180.659),
    (159.249, 1.5, -179.769),
    (139.565, 1.5, -131.049),
    (73.59, 1.5, 39.281),
    (78.003, 1.5, 34.493),
]))
fillet2.Radius = 1
doc.recompute()

fillet3 = body.newObject("PartDesign::Fillet", "Fillet002")
fillet3.Base = (fillet2, edges_at(fillet2, [(141.594, 1.5, -256.979)]))
fillet3.Radius = 1

sketch7 = body.newObject("Sketcher::SketchObject", "Sketch006")
sketch7.AttachmentSupport = (doc.getObject("XZ_Plane"), [""])
sketch7.MapMode = "FlatFace"
sketch7.AttachmentOffset = App.Placement(V(0, 0, -3), App.Rotation())
sketch7.addGeometry([
    Part.LineSegment(V(117.3, -54.7, 0), V(98.3, -7.5, 0)),
    Part.ArcOfCircle(Part.Circle(V(191, 30, 0), V(0, 0, 1), 100), math.radians(-176.71), math.radians(-158)),
    Part.ArcOfCircle(Part.Circle(V(94.6, 24.5, 0), V(0, 0, 1), 3.4), math.radians(140), math.radians(183)),
    Part.ArcOfCircle(Part.Circle(V(87.3, 30.5, 0), V(0, 0, 1), 6), math.radians(-40), math.radians(28)),
    Part.ArcOfCircle(Part.Circle(V(102.2, 38.3, 0), V(0, 0, 1), 10.8), math.radians(175), math.radians(208)),
    Part.ArcOfCircle(Part.Circle(V(191, 30, 0), V(0, 0, 1), 100), math.radians(164.54), math.radians(174.67)),
    Part.ArcOfCircle(Part.Circle(V(82.5, 60, 0), V(0, 0, 1), 12.6), math.radians(-15.46), math.radians(0)),
    Part.ArcOfCircle(Part.Circle(V(401.2, 60, 0), V(0, 0, 1), 306.2), math.radians(-180), math.radians(-158)),
    Part.ArcOfCircle(Part.Circle(V(77.3, 30.5, 0), V(0, 0, 1), 4.1), math.radians(-100), math.radians(-10)),
    Part.ArcOfCircle(Part.Circle(V(76.2, 24.1, 0), V(0, 0, 1), 2.3), math.radians(80), math.radians(107)),
    Part.ArcOfCircle(Part.Circle(V(74, 31.3, 0), V(0, 0, 1), 5.1), math.radians(-73), math.radians(43)),
    Part.ArcOfCircle(Part.Circle(V(78.5, 35.4, 0), V(0, 0, 1), 1), math.radians(-137), math.radians(-104)),
    Part.ArcOfCircle(Part.Circle(V(77.3, 30.5, 0), V(0, 0, 1), 4.1), math.radians(10), math.radians(76)),
    Part.ArcOfCircle(Part.Circle(V(87.3, 30.5, 0), V(0, 0, 1), 6), math.radians(173.34), math.radians(186.66)),
], False)
sketch7.addConstraint([
    Sketcher.Constraint("Tangent", 0, 2, 1, 2),
    Sketcher.Constraint("Tangent", 1, 1, 2, 2),
    Sketcher.Constraint("Tangent", 2, 1, 3, 1),
    Sketcher.Constraint("Tangent", 3, 2, 4, 2),
    Sketcher.Constraint("Tangent", 4, 1, 5, 2),
    Sketcher.Constraint("Tangent", 5, 1, 6, 1),
    Sketcher.Constraint("Tangent", 6, 2, 7, 1),
    Sketcher.Constraint("Tangent", 7, 2, 0, 1),
    Sketcher.Constraint("Tangent", 8, 1, 9, 1),
    Sketcher.Constraint("Tangent", 9, 2, 10, 1),
    Sketcher.Constraint("Tangent", 10, 2, 11, 1),
    Sketcher.Constraint("Tangent", 11, 2, 12, 2),
    Sketcher.Constraint("Coincident", 12, 1, 13, 1),
    Sketcher.Constraint("Coincident", 13, 2, 8, 2),
    Sketcher.Constraint("Coincident", 5, 3, 1, 3),
    Sketcher.Constraint("Coincident", 12, 3, 8, 3),
    Sketcher.Constraint("Coincident", 13, 3, 3, 3),
    Sketcher.Constraint("Equal", 1, 5),
    Sketcher.Constraint("Equal", 8, 12),
    Sketcher.Constraint("Equal", 3, 13),
    Sketcher.Constraint("Horizontal", 6, 3, 7, 3),
    Sketcher.Constraint("Horizontal", 3, 3, 8, 3),
    Sketcher.Constraint("Radius", 1, Q("100 mm")),
    Sketcher.Constraint("Radius", 3, Q("6 mm")),
    Sketcher.Constraint("Radius", 11, Q("1 mm")),
    Sketcher.Constraint("Radius", 8, Q("4.1 mm")),
    Sketcher.Constraint("Angle", 0, Q("112 deg")),
    Sketcher.Constraint("Radius", 6, Q("12.55 mm")),
    Sketcher.Constraint("DistanceY", -1, 1, 1, 3, Q("30 mm")),
    Sketcher.Constraint("DistanceY", -1, 1, 6, 3, Q("60 mm")),
    Sketcher.Constraint("DistanceX", 8, 3, 3, 3, Q("10 mm")),
    Sketcher.Constraint("DistanceX", -1, 1, 6, 3, Q("82.5 mm")),
    Sketcher.Constraint("Radius", 9, Q("2.321949 mm")),
    Sketcher.Constraint("Radius", 2, Q("3.421404 mm")),
    Sketcher.Constraint("Radius", 4, Q("10.828526 mm")),
    Sketcher.Constraint("Radius", 10, Q("5.121495 mm")),
    Sketcher.Constraint("DistanceX", 1, 1, 2, 1, Q("0.7764 mm")),
    Sketcher.Constraint("DistanceX", 9, 3, 7, 2, Q("41.169799 mm")),
    Sketcher.Constraint("DistanceY", 11, 2, 10, 2, Q("0.292698 mm")),
    Sketcher.Constraint("DistanceY", -1, 1, 2, 3, Q("24.460789 mm")),
])
pad3 = body.newObject("PartDesign::Pad", "Pad002")
pad3.Profile = sketch7
pad3.Length = 3

doc.recompute()
